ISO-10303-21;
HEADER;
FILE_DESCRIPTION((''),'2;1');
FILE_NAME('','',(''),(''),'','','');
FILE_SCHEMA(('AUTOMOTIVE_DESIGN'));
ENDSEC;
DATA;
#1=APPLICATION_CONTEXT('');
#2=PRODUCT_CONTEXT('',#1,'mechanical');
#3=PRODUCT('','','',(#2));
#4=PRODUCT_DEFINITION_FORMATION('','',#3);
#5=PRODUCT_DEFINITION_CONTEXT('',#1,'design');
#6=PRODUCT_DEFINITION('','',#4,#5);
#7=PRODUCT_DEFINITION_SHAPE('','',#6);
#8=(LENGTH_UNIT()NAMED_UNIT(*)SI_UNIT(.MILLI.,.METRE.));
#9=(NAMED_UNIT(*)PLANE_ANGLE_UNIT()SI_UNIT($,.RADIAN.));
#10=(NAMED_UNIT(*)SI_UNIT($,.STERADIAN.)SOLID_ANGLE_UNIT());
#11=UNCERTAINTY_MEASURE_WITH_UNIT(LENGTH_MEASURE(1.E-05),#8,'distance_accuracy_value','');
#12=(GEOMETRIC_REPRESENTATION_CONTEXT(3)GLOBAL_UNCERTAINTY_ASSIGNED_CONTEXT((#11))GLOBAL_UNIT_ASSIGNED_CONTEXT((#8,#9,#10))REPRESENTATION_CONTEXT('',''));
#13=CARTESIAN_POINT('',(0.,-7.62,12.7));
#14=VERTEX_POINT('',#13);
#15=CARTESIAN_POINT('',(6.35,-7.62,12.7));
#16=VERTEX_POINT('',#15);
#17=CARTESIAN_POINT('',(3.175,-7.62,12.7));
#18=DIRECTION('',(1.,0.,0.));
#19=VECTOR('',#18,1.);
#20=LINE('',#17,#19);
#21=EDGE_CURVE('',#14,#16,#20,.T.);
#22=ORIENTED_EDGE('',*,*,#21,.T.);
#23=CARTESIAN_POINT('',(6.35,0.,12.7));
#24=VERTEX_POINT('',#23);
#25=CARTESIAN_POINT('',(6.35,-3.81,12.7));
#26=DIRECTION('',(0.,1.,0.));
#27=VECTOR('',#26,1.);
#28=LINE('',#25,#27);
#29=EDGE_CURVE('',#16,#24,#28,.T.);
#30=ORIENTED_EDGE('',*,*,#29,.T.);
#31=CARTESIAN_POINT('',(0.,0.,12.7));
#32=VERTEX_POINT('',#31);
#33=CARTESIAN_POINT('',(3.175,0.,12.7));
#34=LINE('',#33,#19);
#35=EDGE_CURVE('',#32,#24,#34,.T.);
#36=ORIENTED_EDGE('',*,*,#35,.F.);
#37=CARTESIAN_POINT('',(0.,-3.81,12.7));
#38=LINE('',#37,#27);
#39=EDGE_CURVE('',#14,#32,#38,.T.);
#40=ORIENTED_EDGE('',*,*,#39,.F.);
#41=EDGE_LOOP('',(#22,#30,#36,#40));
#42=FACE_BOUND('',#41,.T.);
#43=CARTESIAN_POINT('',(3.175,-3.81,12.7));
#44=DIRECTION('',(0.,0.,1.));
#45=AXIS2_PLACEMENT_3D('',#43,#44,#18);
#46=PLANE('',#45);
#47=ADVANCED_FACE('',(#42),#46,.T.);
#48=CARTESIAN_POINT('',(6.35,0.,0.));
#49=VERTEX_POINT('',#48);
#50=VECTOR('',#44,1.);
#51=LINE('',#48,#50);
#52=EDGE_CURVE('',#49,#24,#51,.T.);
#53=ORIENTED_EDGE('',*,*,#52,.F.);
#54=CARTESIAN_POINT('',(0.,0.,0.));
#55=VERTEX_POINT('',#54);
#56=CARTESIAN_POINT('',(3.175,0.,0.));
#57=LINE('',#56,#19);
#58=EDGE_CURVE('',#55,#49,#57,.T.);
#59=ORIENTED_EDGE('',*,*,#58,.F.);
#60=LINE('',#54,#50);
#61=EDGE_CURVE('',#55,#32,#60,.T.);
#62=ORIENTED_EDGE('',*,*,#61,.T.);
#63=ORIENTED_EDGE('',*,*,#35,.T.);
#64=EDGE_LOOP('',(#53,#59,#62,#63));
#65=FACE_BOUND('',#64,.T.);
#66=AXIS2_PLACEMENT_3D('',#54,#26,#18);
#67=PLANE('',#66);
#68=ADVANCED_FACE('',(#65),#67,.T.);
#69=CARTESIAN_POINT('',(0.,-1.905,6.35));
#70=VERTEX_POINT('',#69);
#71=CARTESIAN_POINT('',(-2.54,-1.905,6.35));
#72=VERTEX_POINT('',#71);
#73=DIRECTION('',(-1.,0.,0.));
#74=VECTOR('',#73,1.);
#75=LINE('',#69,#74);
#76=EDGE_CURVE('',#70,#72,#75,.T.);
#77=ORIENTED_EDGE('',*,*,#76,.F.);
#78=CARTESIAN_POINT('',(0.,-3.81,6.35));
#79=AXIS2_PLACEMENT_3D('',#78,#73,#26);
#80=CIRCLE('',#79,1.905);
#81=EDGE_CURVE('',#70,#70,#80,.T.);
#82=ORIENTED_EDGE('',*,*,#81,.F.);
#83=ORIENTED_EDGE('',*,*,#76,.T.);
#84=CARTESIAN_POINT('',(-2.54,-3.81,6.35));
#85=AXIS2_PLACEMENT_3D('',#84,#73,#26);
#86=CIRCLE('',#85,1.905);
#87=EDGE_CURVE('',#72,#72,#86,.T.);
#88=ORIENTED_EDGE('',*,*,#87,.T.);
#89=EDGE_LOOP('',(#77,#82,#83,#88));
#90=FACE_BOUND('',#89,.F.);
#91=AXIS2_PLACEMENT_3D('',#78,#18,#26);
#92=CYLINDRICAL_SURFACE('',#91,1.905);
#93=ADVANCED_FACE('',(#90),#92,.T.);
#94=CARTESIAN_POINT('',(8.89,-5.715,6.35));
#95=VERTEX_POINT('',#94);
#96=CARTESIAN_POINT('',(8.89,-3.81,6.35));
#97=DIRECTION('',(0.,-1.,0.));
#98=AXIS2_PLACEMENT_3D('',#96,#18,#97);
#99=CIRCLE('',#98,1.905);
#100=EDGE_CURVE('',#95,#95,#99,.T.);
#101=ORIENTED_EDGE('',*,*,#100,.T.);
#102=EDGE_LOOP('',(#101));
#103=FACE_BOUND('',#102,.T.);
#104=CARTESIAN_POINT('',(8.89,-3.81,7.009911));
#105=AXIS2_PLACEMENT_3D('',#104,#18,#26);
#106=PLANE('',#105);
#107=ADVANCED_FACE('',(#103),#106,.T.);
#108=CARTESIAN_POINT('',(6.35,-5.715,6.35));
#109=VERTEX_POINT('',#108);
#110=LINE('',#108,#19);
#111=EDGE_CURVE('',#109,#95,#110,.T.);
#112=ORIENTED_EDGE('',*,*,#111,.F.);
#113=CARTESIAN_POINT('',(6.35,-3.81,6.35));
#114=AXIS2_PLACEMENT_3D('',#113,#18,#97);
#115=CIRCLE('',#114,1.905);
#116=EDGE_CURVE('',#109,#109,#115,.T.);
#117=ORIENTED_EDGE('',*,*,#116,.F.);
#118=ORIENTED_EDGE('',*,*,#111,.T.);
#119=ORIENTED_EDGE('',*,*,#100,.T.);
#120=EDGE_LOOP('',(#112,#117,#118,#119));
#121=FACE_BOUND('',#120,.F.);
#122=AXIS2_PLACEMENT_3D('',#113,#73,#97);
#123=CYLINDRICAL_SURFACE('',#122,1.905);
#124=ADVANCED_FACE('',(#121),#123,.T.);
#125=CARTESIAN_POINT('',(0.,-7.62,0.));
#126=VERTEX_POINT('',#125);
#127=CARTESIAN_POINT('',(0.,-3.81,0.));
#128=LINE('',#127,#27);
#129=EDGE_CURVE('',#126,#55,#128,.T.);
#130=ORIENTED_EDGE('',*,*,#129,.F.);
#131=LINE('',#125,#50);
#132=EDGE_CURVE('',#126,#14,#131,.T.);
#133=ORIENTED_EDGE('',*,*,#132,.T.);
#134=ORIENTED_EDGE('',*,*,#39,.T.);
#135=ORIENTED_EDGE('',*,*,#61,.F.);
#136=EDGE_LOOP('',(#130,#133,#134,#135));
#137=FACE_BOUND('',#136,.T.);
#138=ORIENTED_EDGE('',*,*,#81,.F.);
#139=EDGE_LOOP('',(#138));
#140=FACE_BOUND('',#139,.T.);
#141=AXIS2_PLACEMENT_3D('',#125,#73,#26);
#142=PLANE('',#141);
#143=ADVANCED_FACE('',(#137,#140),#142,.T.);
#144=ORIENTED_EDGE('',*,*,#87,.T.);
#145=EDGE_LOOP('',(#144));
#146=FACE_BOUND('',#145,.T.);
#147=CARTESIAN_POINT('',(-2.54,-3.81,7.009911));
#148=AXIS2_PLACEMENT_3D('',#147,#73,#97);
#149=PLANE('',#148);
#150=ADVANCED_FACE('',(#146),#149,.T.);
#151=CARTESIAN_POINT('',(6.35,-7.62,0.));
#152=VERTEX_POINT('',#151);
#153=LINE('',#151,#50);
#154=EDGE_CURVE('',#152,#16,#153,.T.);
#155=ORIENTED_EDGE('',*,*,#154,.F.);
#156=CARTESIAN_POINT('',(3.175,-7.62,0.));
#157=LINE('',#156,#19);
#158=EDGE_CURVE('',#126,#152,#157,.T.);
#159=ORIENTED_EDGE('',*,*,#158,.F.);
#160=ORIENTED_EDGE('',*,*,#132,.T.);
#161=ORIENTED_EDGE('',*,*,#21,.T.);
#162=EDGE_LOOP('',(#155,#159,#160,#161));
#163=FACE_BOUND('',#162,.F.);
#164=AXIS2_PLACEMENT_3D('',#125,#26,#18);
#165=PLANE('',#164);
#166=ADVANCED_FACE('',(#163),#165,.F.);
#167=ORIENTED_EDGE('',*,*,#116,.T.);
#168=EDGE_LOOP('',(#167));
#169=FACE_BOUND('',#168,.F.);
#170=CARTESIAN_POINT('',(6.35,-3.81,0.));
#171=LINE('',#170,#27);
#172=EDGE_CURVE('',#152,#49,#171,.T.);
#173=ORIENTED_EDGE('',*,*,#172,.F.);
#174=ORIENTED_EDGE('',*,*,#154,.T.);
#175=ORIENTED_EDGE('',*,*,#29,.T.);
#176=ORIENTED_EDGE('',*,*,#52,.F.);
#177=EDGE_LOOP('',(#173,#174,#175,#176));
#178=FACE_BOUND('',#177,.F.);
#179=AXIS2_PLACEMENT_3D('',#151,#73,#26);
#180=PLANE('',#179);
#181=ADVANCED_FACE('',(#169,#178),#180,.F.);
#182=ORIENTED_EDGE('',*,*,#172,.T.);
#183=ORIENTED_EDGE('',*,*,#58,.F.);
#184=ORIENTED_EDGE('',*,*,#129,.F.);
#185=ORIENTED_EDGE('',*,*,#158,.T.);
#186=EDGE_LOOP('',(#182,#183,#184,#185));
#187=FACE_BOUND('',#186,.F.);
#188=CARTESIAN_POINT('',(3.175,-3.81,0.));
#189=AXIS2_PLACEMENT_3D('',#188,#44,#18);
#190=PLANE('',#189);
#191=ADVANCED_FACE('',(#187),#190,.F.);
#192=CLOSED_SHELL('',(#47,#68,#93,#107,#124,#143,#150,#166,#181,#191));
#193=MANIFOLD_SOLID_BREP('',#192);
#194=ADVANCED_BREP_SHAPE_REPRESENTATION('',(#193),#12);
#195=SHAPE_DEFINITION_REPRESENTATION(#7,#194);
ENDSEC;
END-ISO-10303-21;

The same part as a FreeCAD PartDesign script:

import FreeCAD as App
import Part
import Sketcher

V = App.Vector
Q = App.Units.Quantity

doc = App.newDocument("Part")
body = doc.addObject("PartDesign::Body", "Body")

# Sketch on XY plane
sketch1 = doc.addObject("Sketcher::SketchObject", "Sketch")
body.addObject(sketch1)
sketch1.AttachmentSupport = (doc.XY_Plane, [""])
sketch1.MapMode = "FlatFace"
sketch1.addGeometry([
    Part.LineSegment(V(0, 0, 0), V(0, -7.62, 0)),
    Part.LineSegment(V(0, -7.62, 0), V(6.35, -7.62, 0)),
    Part.LineSegment(V(6.35, -7.62, 0), V(6.35, 0, 0)),
    Part.LineSegment(V(6.35, 0, 0), V(0, 0, 0)),
], False)
sketch1.addConstraint([
    Sketcher.Constraint("Coincident", 0, 2, 1, 1),
    Sketcher.Constraint("Coincident", 1, 2, 2, 1),
    Sketcher.Constraint("Coincident", 2, 2, 3, 1),
    Sketcher.Constraint("Coincident", 3, 2, 0, 1),
    Sketcher.Constraint("Vertical", 0),
    Sketcher.Constraint("Horizontal", 1),
    Sketcher.Constraint("Vertical", 2),
    Sketcher.Constraint("Horizontal", 3),
    Sketcher.Constraint("Coincident", 3, 2, -1, 1),
    Sketcher.Constraint("DistanceY", 0, 2, 0, 1, Q("0.3 in")),
    Sketcher.Constraint("DistanceX", 1, 1, 1, 2, Q("0.25 in")),
])
pad1 = doc.addObject("PartDesign::Pad", "Pad")
body.addObject(pad1)
pad1.Profile = sketch1
pad1.Length = Q("0.5 in")

# Sketch on YZ plane
sketch2 = doc.addObject("Sketcher::SketchObject", "Sketch001")
body.addObject(sketch2)
sketch2.AttachmentSupport = (doc.YZ_Plane, [""])
sketch2.MapMode = "FlatFace"
sketch2.AttachmentOffset = App.Placement(V(0, 0, 0.25 * 25.4), App.Rotation())
sketch2.addGeometry(Part.Circle(V(-3.81, 6.35, 0), V(0, 0, 1), 1.905), False)
sketch2.addConstraint([
    Sketcher.Constraint("Diameter", 0, Q("0.15 in")),
    Sketcher.Constraint("DistanceX", 0, 3, -1, 1, Q("0.15 in")),
    Sketcher.Constraint("DistanceY", -1, 1, 0, 3, Q("0.25 in")),
])
pad2 = doc.addObject("PartDesign::Pad", "Pad001")
body.addObject(pad2)
pad2.Profile = sketch2
pad2.Length = Q("0.1 in")

# Sketch on YZ plane
sketch3 = doc.addObject("Sketcher::SketchObject", "Sketch002")
body.addObject(sketch3)
sketch3.AttachmentSupport = (doc.YZ_Plane, [""])
sketch3.MapMode = "FlatFace"
sketch3.addGeometry(Part.Circle(V(-3.81, 6.35, 0), V(0, 0, 1), 1.905), False)
sketch3.addConstraint([
    Sketcher.Constraint("Diameter", 0, Q("0.15 in")),
    Sketcher.Constraint("DistanceX", 0, 3, -1, 1, Q("0.15 in")),
    Sketcher.Constraint("DistanceY", -1, 1, 0, 3, Q("0.25 in")),
])
pad3 = doc.addObject("PartDesign::Pad", "Pad002")
body.addObject(pad3)
pad3.Profile = sketch3
pad3.Length = Q("0.1 in")
pad3.Reversed = True

doc.recompute()
